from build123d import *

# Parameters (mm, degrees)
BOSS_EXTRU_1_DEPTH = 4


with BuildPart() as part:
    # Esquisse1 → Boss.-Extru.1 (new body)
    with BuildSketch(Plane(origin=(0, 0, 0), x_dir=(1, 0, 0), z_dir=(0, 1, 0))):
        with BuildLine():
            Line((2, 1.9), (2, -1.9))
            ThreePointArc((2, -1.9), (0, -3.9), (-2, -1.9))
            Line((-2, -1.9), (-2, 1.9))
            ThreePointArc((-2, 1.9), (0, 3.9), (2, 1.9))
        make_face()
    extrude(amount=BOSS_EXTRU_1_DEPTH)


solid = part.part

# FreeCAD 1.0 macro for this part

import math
import FreeCAD as App
import Part
import Sketcher
from FreeCAD import Vector

doc = App.newDocument("Part")
params = doc.addObject("Spreadsheet::Sheet", "Params")
for row, (alias, value) in enumerate([
    ("sketch1_radius", "2 mm"),
    ("sketch1_height", "3.8 mm"),
    ("pad1_length", "4 mm"),
], start=1):
    params.set(f"A{row}", alias)
    params.set(f"B{row}", "=" + value)
    params.setAlias(f"B{row}", alias)

body = doc.addObject("PartDesign::Body", "Body")

# Sketch on XZ plane
sketch1 = doc.addObject("Sketcher::SketchObject", "Sketch")
body.addObject(sketch1)
sketch1.AttachmentSupport = (doc.XZ_Plane, [""])
sketch1.MapMode = "FlatFace"
sketch1.addGeometry([
    Part.LineSegment(Vector(2, 1.9, 0), Vector(2, -1.9, 0)),
    Part.ArcOfCircle(Part.Circle(Vector(0, -1.9, 0), Vector(0, 0, 1), 2), math.radians(180), math.radians(360)),
    Part.LineSegment(Vector(-2, -1.9, 0), Vector(-2, 1.9, 0)),
    Part.ArcOfCircle(Part.Circle(Vector(0, 1.9, 0), Vector(0, 0, 1), 2), math.radians(0), math.radians(180)),
], False)
sketch1.addConstraint([
    Sketcher.Constraint("Tangent", 0, 2, 1, 2),
    Sketcher.Constraint("Tangent", 1, 1, 2, 1),
    Sketcher.Constraint("Tangent", 2, 2, 3, 2),
    Sketcher.Constraint("Tangent", 3, 1, 0, 1),
    Sketcher.Constraint("Vertical", 0),
    Sketcher.Constraint("Vertical", 2),
    Sketcher.Constraint("Symmetric", 1, 3, 3, 3, -1, 1),
    Sketcher.Constraint("Radius", 1, 2.0),
    Sketcher.Constraint("DistanceY", 0, 2, 0, 1, 3.8),
])
sketch1.setExpression("Constraints[7]", "Params.sketch1_radius")
sketch1.setExpression("Constraints[8]", "Params.sketch1_height")
pad1 = doc.addObject("PartDesign::Pad", "Pad")
body.addObject(pad1)
pad1.Profile = sketch1
pad1.setExpression("Length", "Params.pad1_length")
pad1.Reversed = True

doc.recompute()
